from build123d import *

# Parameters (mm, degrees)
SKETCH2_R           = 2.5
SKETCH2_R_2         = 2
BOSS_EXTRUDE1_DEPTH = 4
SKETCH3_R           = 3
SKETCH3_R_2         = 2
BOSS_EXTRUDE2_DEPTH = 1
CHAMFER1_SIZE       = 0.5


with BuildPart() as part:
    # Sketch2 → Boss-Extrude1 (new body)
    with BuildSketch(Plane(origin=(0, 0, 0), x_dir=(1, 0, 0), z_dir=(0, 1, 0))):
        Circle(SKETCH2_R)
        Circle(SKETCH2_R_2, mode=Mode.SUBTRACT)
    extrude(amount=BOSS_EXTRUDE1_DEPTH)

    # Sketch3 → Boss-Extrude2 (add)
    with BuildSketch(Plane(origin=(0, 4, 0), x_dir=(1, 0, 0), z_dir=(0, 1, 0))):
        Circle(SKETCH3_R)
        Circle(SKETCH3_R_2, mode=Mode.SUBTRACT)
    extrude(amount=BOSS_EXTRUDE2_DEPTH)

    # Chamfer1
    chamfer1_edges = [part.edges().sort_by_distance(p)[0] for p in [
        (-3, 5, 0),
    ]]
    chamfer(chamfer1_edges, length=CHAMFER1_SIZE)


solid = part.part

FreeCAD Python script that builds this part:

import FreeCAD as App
import Part
import Sketcher
from FreeCAD import Vector
Q = App.Units.Quantity


def edges_at(feature, points):
    """Names of the edges that pass closest to the given points."""
    edges = feature.Shape.Edges
    near = lambda p: min(range(len(edges)), key=lambda i: edges[i].distToShape(Part.Vertex(*p))[0])
    return sorted({f"Edge{near(p) + 1}" for p in points})

doc = App.newDocument("Part")
body = doc.addObject("PartDesign::Body", "Body")

# Sketch on XZ plane
sketch1 = body.newObject("Sketcher::SketchObject", "Sketch")
sketch1.AttachmentSupport = (doc.getObject("XZ_Plane"), [""])
sketch1.MapMode = "FlatFace"
sketch1.addGeometry([
    Part.Circle(Vector(0, 0, 0), Vector(0, 0, 1), 2.5),
    Part.Circle(Vector(0, 0, 0), Vector(0, 0, 1), 2),
], False)
sketch1.addConstraint([
    Sketcher.Constraint("Coincident", 0, 3, -1, 1),
    Sketcher.Constraint("Coincident", 1, 3, -1, 1),
    Sketcher.Constraint("Diameter", 0, Q("5 mm")),
    Sketcher.Constraint("Diameter", 1, Q("4 mm")),
])
pad1 = body.newObject("PartDesign::Pad", "Pad")
pad1.Profile = sketch1
pad1.Length = 4
pad1.Reversed = True

# Sketch on XZ plane
sketch2 = body.newObject("Sketcher::SketchObject", "Sketch001")
sketch2.AttachmentSupport = (doc.getObject("XZ_Plane"), [""])
sketch2.MapMode = "FlatFace"
sketch2.AttachmentOffset = App.Placement(Vector(0, 0, -4), App.Rotation())
sketch2.addGeometry([
    Part.Circle(Vector(0, 0, 0), Vector(0, 0, 1), 3),
    Part.Circle(Vector(0, 0, 0), Vector(0, 0, 1), 2),
], False)
sketch2.addConstraint([
    Sketcher.Constraint("Coincident", 0, 3, -1, 1),
    Sketcher.Constraint("Coincident", 1, 3, -1, 1),
    Sketcher.Constraint("Diameter", 0, Q("6 mm")),
    Sketcher.Constraint("Diameter", 1, Q("4 mm")),
])
pad2 = body.newObject("PartDesign::Pad", "Pad001")
pad2.Profile = sketch2
pad2.Length = 1
pad2.Reversed = True
doc.recompute()

chamfer = body.newObject("PartDesign::Chamfer", "Chamfer")
chamfer.Base = (pad2, edges_at(pad2, [(-3, 5, 0)]))
chamfer.Size = 0.5

doc.recompute()
